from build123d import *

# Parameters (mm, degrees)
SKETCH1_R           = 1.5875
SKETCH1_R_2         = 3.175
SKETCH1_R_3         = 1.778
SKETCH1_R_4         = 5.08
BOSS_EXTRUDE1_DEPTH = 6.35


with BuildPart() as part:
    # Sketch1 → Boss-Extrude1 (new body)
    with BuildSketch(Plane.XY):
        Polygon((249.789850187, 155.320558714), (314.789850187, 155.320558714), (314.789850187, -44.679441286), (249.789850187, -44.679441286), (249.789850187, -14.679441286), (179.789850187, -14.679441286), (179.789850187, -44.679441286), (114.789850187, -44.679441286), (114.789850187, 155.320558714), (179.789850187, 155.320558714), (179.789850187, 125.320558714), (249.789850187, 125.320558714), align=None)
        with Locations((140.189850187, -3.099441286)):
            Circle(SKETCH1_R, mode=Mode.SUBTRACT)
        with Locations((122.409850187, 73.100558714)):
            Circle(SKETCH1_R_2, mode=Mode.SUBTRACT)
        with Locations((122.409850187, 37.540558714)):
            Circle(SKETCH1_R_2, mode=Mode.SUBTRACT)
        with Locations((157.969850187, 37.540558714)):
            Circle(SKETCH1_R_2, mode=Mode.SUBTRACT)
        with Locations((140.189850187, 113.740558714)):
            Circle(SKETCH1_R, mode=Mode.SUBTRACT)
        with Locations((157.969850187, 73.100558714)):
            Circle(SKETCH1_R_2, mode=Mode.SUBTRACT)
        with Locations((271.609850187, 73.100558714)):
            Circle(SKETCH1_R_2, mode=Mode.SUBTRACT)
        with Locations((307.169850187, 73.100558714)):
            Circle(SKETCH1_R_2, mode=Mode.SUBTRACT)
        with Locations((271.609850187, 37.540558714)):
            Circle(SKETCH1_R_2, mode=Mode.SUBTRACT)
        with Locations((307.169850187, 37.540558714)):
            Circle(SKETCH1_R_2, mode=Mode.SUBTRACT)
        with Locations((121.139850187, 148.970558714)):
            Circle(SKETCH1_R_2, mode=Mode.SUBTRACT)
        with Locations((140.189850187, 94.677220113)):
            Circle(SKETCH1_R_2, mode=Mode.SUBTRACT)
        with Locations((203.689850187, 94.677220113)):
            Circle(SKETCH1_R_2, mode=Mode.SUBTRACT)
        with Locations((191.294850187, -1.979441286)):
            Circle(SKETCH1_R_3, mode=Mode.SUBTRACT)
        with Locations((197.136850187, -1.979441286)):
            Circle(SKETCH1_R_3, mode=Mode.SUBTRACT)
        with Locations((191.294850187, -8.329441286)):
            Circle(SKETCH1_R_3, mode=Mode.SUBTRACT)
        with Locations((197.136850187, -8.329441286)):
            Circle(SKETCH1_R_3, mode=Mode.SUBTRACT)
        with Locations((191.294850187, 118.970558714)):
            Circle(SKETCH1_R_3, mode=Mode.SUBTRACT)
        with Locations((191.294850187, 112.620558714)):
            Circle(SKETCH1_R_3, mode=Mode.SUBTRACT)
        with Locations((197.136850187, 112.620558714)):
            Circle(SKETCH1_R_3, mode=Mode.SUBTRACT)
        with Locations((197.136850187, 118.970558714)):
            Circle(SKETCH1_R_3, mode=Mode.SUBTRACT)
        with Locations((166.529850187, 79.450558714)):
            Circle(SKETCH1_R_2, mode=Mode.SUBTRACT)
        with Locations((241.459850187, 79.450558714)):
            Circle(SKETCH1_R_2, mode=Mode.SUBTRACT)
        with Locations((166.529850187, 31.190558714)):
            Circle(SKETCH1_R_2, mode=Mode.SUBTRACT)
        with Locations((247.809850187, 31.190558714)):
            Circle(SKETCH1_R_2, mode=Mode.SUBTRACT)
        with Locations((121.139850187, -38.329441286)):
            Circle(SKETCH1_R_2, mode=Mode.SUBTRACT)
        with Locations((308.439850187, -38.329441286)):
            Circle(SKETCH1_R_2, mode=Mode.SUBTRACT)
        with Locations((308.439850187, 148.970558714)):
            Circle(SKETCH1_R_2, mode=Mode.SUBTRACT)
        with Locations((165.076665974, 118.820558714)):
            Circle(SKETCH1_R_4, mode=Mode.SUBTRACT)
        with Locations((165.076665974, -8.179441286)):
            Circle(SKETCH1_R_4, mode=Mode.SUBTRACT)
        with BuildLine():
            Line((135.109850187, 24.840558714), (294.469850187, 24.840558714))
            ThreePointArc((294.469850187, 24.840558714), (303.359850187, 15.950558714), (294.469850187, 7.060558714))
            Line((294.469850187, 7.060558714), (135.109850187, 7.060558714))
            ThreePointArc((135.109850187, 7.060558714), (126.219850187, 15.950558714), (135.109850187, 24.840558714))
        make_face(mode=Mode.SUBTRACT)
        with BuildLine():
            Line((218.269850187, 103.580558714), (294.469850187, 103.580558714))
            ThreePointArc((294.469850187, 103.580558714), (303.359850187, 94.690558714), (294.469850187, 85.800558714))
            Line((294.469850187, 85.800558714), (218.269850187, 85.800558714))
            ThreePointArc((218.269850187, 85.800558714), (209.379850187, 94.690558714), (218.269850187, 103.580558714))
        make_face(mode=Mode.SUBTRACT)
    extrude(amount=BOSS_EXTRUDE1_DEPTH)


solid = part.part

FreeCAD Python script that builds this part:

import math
import FreeCAD as App
import Part
import Sketcher
from FreeCAD import Vector
Q = App.Units.Quantity


def add_polygon(sketch, points):
    """Adds a closed chain of lines whose ends are joined by coincident constraints."""
    first, n = sketch.GeometryCount, len(points)
    for a, b in zip(points, points[1:] + points[:1]):
        sketch.addGeometry(Part.LineSegment(App.Vector(*a, 0), App.Vector(*b, 0)), False)
    for i in range(n):
        sketch.addConstraint(Sketcher.Constraint("Coincident", first + i, 2, first + (i + 1) % n, 1))

doc = App.newDocument("Part")
body = doc.addObject("PartDesign::Body", "Body")

# Sketch on XY plane
sketch1 = body.newObject("Sketcher::SketchObject", "Sketch")
sketch1.AttachmentSupport = (doc.getObject("XY_Plane"), [""])
sketch1.MapMode = "FlatFace"
add_polygon(sketch1, [(314.8, 155.3), (249.8, 155.3), (249.8, 125.3), (179.8, 125.3), (179.8, 155.3), (114.8, 155.3), (114.8, -44.7), (179.8, -44.7), (179.8, -14.7), (249.8, -14.7), (249.8, -44.7), (314.8, -44.7)])  # lines 0-11
sketch1.addGeometry(Part.Circle(Vector(308.4, -38.3, 0), Vector(0, 0, 1), 3.2), False)  # 12
sketch1.addGeometry(Part.Circle(Vector(307.2, 37.5, 0), Vector(0, 0, 1), 3.2), False)  # 13
sketch1.addGeometry(Part.Circle(Vector(271.6, 37.5, 0), Vector(0, 0, 1), 3.2), False)  # 14
sketch1.addGeometry(Part.LineSegment(Vector(135.1, 24.8, 0), Vector(294.5, 24.8, 0)), False)  # 15
sketch1.addGeometry(Part.ArcOfCircle(Part.Circle(Vector(294.5, 16, 0), Vector(0, 0, 1), 8.9), math.radians(-90), math.radians(90)), False)  # 16
sketch1.addGeometry(Part.LineSegment(Vector(294.5, 7.1, 0), Vector(135.1, 7.1, 0)), False)  # 17
sketch1.addGeometry(Part.ArcOfCircle(Part.Circle(Vector(135.1, 16, 0), Vector(0, 0, 1), 8.9), math.radians(90), math.radians(270)), False)  # 18
sketch1.addGeometry(Part.Circle(Vector(247.8, 31.2, 0), Vector(0, 0, 1), 3.2), False)  # 19
sketch1.addGeometry(Part.Circle(Vector(197.1, -8.3, 0), Vector(0, 0, 1), 1.8), False)  # 20
sketch1.addGeometry(Part.Circle(Vector(191.3, -8.3, 0), Vector(0, 0, 1), 1.8), False)  # 21
sketch1.addGeometry(Part.Circle(Vector(197.1, -2, 0), Vector(0, 0, 1), 1.8), False)  # 22
sketch1.addGeometry(Part.Circle(Vector(191.3, -2, 0), Vector(0, 0, 1), 1.8), False)  # 23
sketch1.addGeometry(Part.Circle(Vector(121.1, -38.3, 0), Vector(0, 0, 1), 3.2), False)  # 24
sketch1.addGeometry(Part.Circle(Vector(165.1, -8.2, 0), Vector(0, 0, 1), 5.1), False)  # 25
sketch1.addGeometry(Part.Circle(Vector(140.2, -3.1, 0), Vector(0, 0, 1), 1.6), False)  # 26
sketch1.addGeometry(Part.Circle(Vector(166.5, 31.2, 0), Vector(0, 0, 1), 3.2), False)  # 27
sketch1.addGeometry(Part.Circle(Vector(158, 37.5, 0), Vector(0, 0, 1), 3.2), False)  # 28
sketch1.addGeometry(Part.Circle(Vector(122.4, 37.5, 0), Vector(0, 0, 1), 3.2), False)  # 29
sketch1.addGeometry(Part.Circle(Vector(307.2, 73.1, 0), Vector(0, 0, 1), 3.2), False)  # 30
sketch1.addGeometry(Part.Circle(Vector(271.6, 73.1, 0), Vector(0, 0, 1), 3.2), False)  # 31
sketch1.addGeometry(Part.Circle(Vector(241.5, 79.5, 0), Vector(0, 0, 1), 3.2), False)  # 32
sketch1.addGeometry(Part.LineSegment(Vector(218.3, 103.6, 0), Vector(294.5, 103.6, 0)), False)  # 33
sketch1.addGeometry(Part.ArcOfCircle(Part.Circle(Vector(294.5, 94.7, 0), Vector(0, 0, 1), 8.9), math.radians(-90), math.radians(90)), False)  # 34
sketch1.addGeometry(Part.LineSegment(Vector(294.5, 85.8, 0), Vector(218.3, 85.8, 0)), False)  # 35
sketch1.addGeometry(Part.ArcOfCircle(Part.Circle(Vector(218.3, 94.7, 0), Vector(0, 0, 1), 8.9), math.radians(90), math.radians(270)), False)  # 36
sketch1.addGeometry(Part.Circle(Vector(308.4, 149, 0), Vector(0, 0, 1), 3.2), False)  # 37
sketch1.addGeometry(Part.Circle(Vector(166.5, 79.5, 0), Vector(0, 0, 1), 3.2), False)  # 38
sketch1.addGeometry(Part.Circle(Vector(203.7, 94.7, 0), Vector(0, 0, 1), 3.2), False)  # 39
sketch1.addGeometry(Part.Circle(Vector(158, 73.1, 0), Vector(0, 0, 1), 3.2), False)  # 40
sketch1.addGeometry(Part.Circle(Vector(122.4, 73.1, 0), Vector(0, 0, 1), 3.2), False)  # 41
sketch1.addGeometry(Part.Circle(Vector(140.2, 94.7, 0), Vector(0, 0, 1), 3.2), False)  # 42
sketch1.addGeometry(Part.Circle(Vector(197.1, 112.6, 0), Vector(0, 0, 1), 1.8), False)  # 43
sketch1.addGeometry(Part.Circle(Vector(191.3, 112.6, 0), Vector(0, 0, 1), 1.8), False)  # 44
sketch1.addGeometry(Part.Circle(Vector(197.1, 119, 0), Vector(0, 0, 1), 1.8), False)  # 45
sketch1.addGeometry(Part.Circle(Vector(191.3, 119, 0), Vector(0, 0, 1), 1.8), False)  # 46
sketch1.addGeometry(Part.Circle(Vector(165.1, 118.8, 0), Vector(0, 0, 1), 5.1), False)  # 47
sketch1.addGeometry(Part.Circle(Vector(140.2, 113.7, 0), Vector(0, 0, 1), 1.6), False)  # 48
sketch1.addGeometry(Part.Circle(Vector(121.1, 149, 0), Vector(0, 0, 1), 3.2), False)  # 49
sketch1.addConstraint([
    Sketcher.Constraint("Tangent", 15, 2, 16, 2),
    Sketcher.Constraint("Tangent", 16, 1, 17, 1),
    Sketcher.Constraint("Tangent", 17, 2, 18, 2),
    Sketcher.Constraint("Tangent", 18, 1, 15, 1),
    Sketcher.Constraint("Tangent", 33, 2, 34, 2),
    Sketcher.Constraint("Tangent", 34, 1, 35, 1),
    Sketcher.Constraint("Tangent", 35, 2, 36, 2),
    Sketcher.Constraint("Tangent", 36, 1, 33, 1),
    Sketcher.Constraint("Horizontal", 0),
    Sketcher.Constraint("Vertical", 1),
    Sketcher.Constraint("Horizontal", 2),
    Sketcher.Constraint("Vertical", 3),
    Sketcher.Constraint("Horizontal", 4),
    Sketcher.Constraint("Vertical", 5),
    Sketcher.Constraint("Horizontal", 6),
    Sketcher.Constraint("Vertical", 7),
    Sketcher.Constraint("Horizontal", 8),
    Sketcher.Constraint("Vertical", 9),
    Sketcher.Constraint("Horizontal", 10),
    Sketcher.Constraint("Vertical", 11),
    Sketcher.Constraint("Horizontal", 15),
    Sketcher.Constraint("Horizontal", 17),
    Sketcher.Constraint("Horizontal", 33),
    Sketcher.Constraint("Horizontal", 35),
    Sketcher.Constraint("Equal", 12, 13),
    Sketcher.Constraint("Equal", 13, 14),
    Sketcher.Constraint("Equal", 14, 19),
    Sketcher.Constraint("Equal", 20, 21),
    Sketcher.Constraint("Equal", 21, 22),
    Sketcher.Constraint("Equal", 22, 23),
    Sketcher.Constraint("Equal", 19, 24),
    Sketcher.Constraint("Equal", 24, 27),
    Sketcher.Constraint("Equal", 27, 28),
    Sketcher.Constraint("Equal", 28, 29),
    Sketcher.Constraint("Equal", 29, 30),
    Sketcher.Constraint("Equal", 30, 31),
    Sketcher.Constraint("Equal", 31, 32),
    Sketcher.Constraint("Equal", 18, 34),
    Sketcher.Constraint("Equal", 32, 37),
    Sketcher.Constraint("Equal", 37, 38),
    Sketcher.Constraint("Equal", 38, 39),
    Sketcher.Constraint("Equal", 39, 40),
    Sketcher.Constraint("Equal", 40, 41),
    Sketcher.Constraint("Equal", 41, 42),
    Sketcher.Constraint("Equal", 23, 43),
    Sketcher.Constraint("Equal", 43, 44),
    Sketcher.Constraint("Equal", 44, 45),
    Sketcher.Constraint("Equal", 45, 46),
    Sketcher.Constraint("Equal", 25, 47),
    Sketcher.Constraint("Equal", 26, 48),
    Sketcher.Constraint("Equal", 42, 49),
    Sketcher.Constraint("Horizontal", 13, 3, 14, 3),
    Sketcher.Constraint("Horizontal", 20, 3, 21, 3),
    Sketcher.Constraint("Horizontal", 22, 3, 23, 3),
    Sketcher.Constraint("Horizontal", 12, 3, 24, 3),
    Sketcher.Constraint("Horizontal", 19, 3, 27, 3),
    Sketcher.Constraint("Horizontal", 14, 3, 28, 3),
    Sketcher.Constraint("Horizontal", 28, 3, 29, 3),
    Sketcher.Constraint("Horizontal", 30, 3, 31, 3),
    Sketcher.Constraint("Horizontal", 32, 3, 38, 3),
    Sketcher.Constraint("Horizontal", 31, 3, 40, 3),
    Sketcher.Constraint("Horizontal", 40, 3, 41, 3),
    Sketcher.Constraint("Horizontal", 39, 3, 42, 3),
    Sketcher.Constraint("Horizontal", 43, 3, 44, 3),
    Sketcher.Constraint("Horizontal", 45, 3, 46, 3),
    Sketcher.Constraint("Horizontal", 37, 3, 49, 3),
    Sketcher.Constraint("Horizontal", 0, 2, 3, 2),
    Sketcher.Constraint("Horizontal", 6, 2, 9, 2),
    Sketcher.Constraint("Vertical", 20, 3, 22, 3),
    Sketcher.Constraint("Vertical", 21, 3, 23, 3),
    Sketcher.Constraint("Vertical", 13, 3, 30, 3),
    Sketcher.Constraint("Vertical", 14, 3, 31, 3),
    Sketcher.Constraint("Vertical", 16, 3, 34, 3),
    Sketcher.Constraint("Vertical", 12, 3, 37, 3),
    Sketcher.Constraint("Vertical", 27, 3, 38, 3),
    Sketcher.Constraint("Vertical", 28, 3, 40, 3),
    Sketcher.Constraint("Vertical", 29, 3, 41, 3),
    Sketcher.Constraint("Vertical", 26, 3, 42, 3),
    Sketcher.Constraint("Vertical", 22, 3, 43, 3),
    Sketcher.Constraint("Vertical", 23, 3, 44, 3),
    Sketcher.Constraint("Vertical", 43, 3, 45, 3),
    Sketcher.Constraint("Vertical", 44, 3, 46, 3),
    Sketcher.Constraint("Vertical", 25, 3, 47, 3),
    Sketcher.Constraint("Vertical", 42, 3, 48, 3),
    Sketcher.Constraint("Vertical", 24, 3, 49, 3),
    Sketcher.Constraint("Vertical", 3, 2, 6, 2),
    Sketcher.Constraint("Vertical", 1, 2, 8, 2),
    Sketcher.Constraint("Equal", 0, 4),
    Sketcher.Constraint("Equal", 3, 7),
    Sketcher.Constraint("Diameter", 25, Q("0.4 in")),
    Sketcher.Constraint("Diameter", 12, Q("0.25 in")),
    Sketcher.Constraint("Diameter", 20, Q("0.14 in")),
    Sketcher.Constraint("DistanceX", 33, 1, 33, 2, Q("3 in")),
    Sketcher.Constraint("Radius", 16, Q("0.35 in")),
    Sketcher.Constraint("Diameter", 26, Q("0.125 in")),
    Sketcher.Constraint("DistanceX", 4, 2, 48, 3, Q("1 in")),
    Sketcher.Constraint("DistanceX", 14, 3, 13, 3, Q("1.4 in")),
    Sketcher.Constraint("DistanceX", 16, 3, 13, 3, Q("0.5 in")),
    Sketcher.Constraint("DistanceY", 16, 3, 19, 3, Q("0.6 in")),
    Sketcher.Constraint("DistanceX", 18, 3, 26, 3, Q("0.2 in")),
    Sketcher.Constraint("DistanceY", 25, 3, 26, 3, Q("0.2 in")),
    Sketcher.Constraint("DistanceX", 18, 3, 28, 3, Q("0.9 in")),
    Sketcher.Constraint("DistanceY", 26, 3, 28, 3, Q("1.6 in")),
    Sketcher.Constraint("DistanceX", 29, 3, 18, 3, Q("0.5 in")),
    Sketcher.Constraint("DistanceY", 13, 3, 30, 3, Q("1.4 in")),
    Sketcher.Constraint("DistanceY", 19, 3, 32, 3, Q("1.9 in")),
    Sketcher.Constraint("DistanceY", 32, 3, 34, 3, Q("0.6 in")),
    Sketcher.Constraint("DistanceX", 28, 3, 39, 3, Q("1.8 in")),
    Sketcher.Constraint("DistanceY", 48, 3, 47, 3, Q("0.2 in")),
    Sketcher.Constraint("DistanceY", 41, 3, 48, 3, Q("1.6 in")),
    Sketcher.Constraint("DistanceY", 43, 3, 1, 2, Q("0.5 in")),
    Sketcher.Constraint("DistanceY", 7, 2, 23, 3, Q("0.5 in")),
    Sketcher.Constraint("DistanceX", 16, 3, 10, 2, Q("0.8 in")),
    Sketcher.Constraint("DistanceY", 15, 2, 13, 3, Q("0.5 in")),
    Sketcher.Constraint("DistanceX", 13, 3, 12, 3, Q("0.05 in")),
    Sketcher.Constraint("DistanceX", 21, 3, 20, 3, Q("0.23 in")),
    Sketcher.Constraint("DistanceY", 20, 3, 22, 3, Q("0.25 in")),
    Sketcher.Constraint("DistanceX", 24, 3, 18, 3, Q("0.55 in")),
    Sketcher.Constraint("DistanceX", 32, 3, 19, 3, Q("0.25 in")),
    Sketcher.Constraint("DistanceY", 43, 3, 45, 3, Q("0.25 in")),
    Sketcher.Constraint("DistanceY", 37, 3, 0, 2, Q("0.25 in")),
    Sketcher.Constraint("DistanceY", 5, 2, 24, 3, Q("0.25 in")),
    Sketcher.Constraint("DistanceX", 20, 3, 19, 3, Q("1.995 in")),
    Sketcher.Constraint("DistanceX", 27, 3, 23, 3, Q("0.975 in")),
    Sketcher.Constraint("DistanceX", 0, 2, 0, 1, 65.0),
    Sketcher.Constraint("DistanceX", 2, 2, 2, 1, 70.0),
    Sketcher.Constraint("DistanceY", 1, 2, 1, 1, 30.0),
    Sketcher.Constraint("DistanceY", 5, 2, 5, 1, 200.0),
    Sketcher.Constraint("DistanceY", 12, 3, 13, 3, 75.87),
    Sketcher.Constraint("DistanceX", 19, 3, 14, 3, 23.8),
    Sketcher.Constraint("DistanceX", -1, 1, 12, 3, 308.43985),
    Sketcher.Constraint("DistanceY", 12, 3, -1, 1, 38.329441),
    Sketcher.Constraint("DistanceY", -1, 1, 39, 3, 94.67722),
    Sketcher.Constraint("DistanceX", -1, 1, 25, 3, 165.076666),
])
pad1 = body.newObject("PartDesign::Pad", "Pad")
pad1.Profile = sketch1
pad1.Length = Q("0.25 in")

doc.recompute()
